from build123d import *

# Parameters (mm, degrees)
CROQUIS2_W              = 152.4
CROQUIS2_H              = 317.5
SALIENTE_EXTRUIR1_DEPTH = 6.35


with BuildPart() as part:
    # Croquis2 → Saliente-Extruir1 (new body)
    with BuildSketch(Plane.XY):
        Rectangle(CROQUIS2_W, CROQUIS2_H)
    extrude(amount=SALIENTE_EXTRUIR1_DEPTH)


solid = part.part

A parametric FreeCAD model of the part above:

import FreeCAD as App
import Part
import Sketcher

V = App.Vector
Q = App.Units.Quantity

doc = App.newDocument("Part")
params = doc.addObject("Spreadsheet::Sheet", "Params")
for row, (alias, value) in enumerate([
    ("sketch1_width", "6 in"),
    ("sketch1_height", "12.5 in"),
    ("pad1_length", "0.25 in"),
], start=1):
    params.set(f"A{row}", alias)
    params.set(f"B{row}", "=" + value)
    params.setAlias(f"B{row}", alias)

body = doc.addObject("PartDesign::Body", "Body")

sketch1 = body.newObject("Sketcher::SketchObject", "Sketch")
sketch1.AttachmentSupport = (doc.getObject("XY_Plane"), [""])
sketch1.MapMode = "FlatFace"
sketch1.addGeometry(Part.LineSegment(V(-76, 159, 0), V(-76, -159, 0)), False)
sketch1.addGeometry(Part.LineSegment(V(-76, -159, 0), V(76, -159, 0)), False)
sketch1.addGeometry(Part.LineSegment(V(76, -159, 0), V(76, 159, 0)), False)
sketch1.addGeometry(Part.LineSegment(V(76, 159, 0), V(-76, 159, 0)), False)
sketch1.addConstraint(Sketcher.Constraint("Coincident", 0, 2, 1, 1))
sketch1.addConstraint(Sketcher.Constraint("Coincident", 1, 2, 2, 1))
sketch1.addConstraint(Sketcher.Constraint("Coincident", 2, 2, 3, 1))
sketch1.addConstraint(Sketcher.Constraint("Coincident", 3, 2, 0, 1))
sketch1.addConstraint(Sketcher.Constraint("Vertical", 0))
sketch1.addConstraint(Sketcher.Constraint("Horizontal", 1))
sketch1.addConstraint(Sketcher.Constraint("Vertical", 2))
sketch1.addConstraint(Sketcher.Constraint("Horizontal", 3))
sketch1.addConstraint(Sketcher.Constraint("Symmetric", 0, 2, 2, 2, -1, 1))
sketch1.addConstraint(Sketcher.Constraint("DistanceX", 1, 1, 1, 2, Q("6 in")))
sketch1.addConstraint(Sketcher.Constraint("DistanceY", 0, 2, 0, 1, Q("12.5 in")))
sketch1.setExpression("Constraints[9]", "Params.sketch1_width")
sketch1.setExpression("Constraints[10]", "Params.sketch1_height")
pad1 = body.newObject("PartDesign::Pad", "Pad")
pad1.Profile = sketch1
pad1.setExpression("Length", "Params.pad1_length")

doc.recompute()
